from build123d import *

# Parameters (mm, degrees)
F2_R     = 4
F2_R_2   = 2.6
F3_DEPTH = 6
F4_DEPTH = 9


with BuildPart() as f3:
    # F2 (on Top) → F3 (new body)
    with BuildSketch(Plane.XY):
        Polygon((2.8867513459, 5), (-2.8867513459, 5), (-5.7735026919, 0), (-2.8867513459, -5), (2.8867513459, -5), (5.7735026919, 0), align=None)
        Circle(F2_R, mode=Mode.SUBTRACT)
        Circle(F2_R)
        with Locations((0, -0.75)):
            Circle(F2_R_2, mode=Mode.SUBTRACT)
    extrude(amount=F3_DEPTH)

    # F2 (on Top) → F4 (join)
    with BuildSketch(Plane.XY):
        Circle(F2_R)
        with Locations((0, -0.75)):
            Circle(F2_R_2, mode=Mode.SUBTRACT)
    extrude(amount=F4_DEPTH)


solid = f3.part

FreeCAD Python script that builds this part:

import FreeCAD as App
import Part
import Sketcher
from FreeCAD import Vector
Q = App.Units.Quantity


def add_polygon(sketch, points):
    """Adds a closed chain of lines whose ends are joined by coincident constraints."""
    first, n = sketch.GeometryCount, len(points)
    for a, b in zip(points, points[1:] + points[:1]):
        sketch.addGeometry(Part.LineSegment(App.Vector(*a, 0), App.Vector(*b, 0)), False)
    for i in range(n):
        sketch.addConstraint(Sketcher.Constraint("Coincident", first + i, 2, first + (i + 1) % n, 1))

doc = App.newDocument("Part")
params = doc.addObject("Spreadsheet::Sheet", "Params")
for row, (alias, value) in enumerate([
    ("sketch1_diameter", "5.2 mm"),
    ("pad1_length", "6 mm"),
    ("sketch2_diameter", "8 mm"),
    ("sketch2_diameter2", "5.2 mm"),
    ("pad2_length", "9 mm"),
], start=1):
    params.set(f"A{row}", alias)
    params.set(f"B{row}", "=" + value)
    params.setAlias(f"B{row}", alias)

body = doc.addObject("PartDesign::Body", "Body")

sketch1 = body.newObject("Sketcher::SketchObject", "Sketch")
sketch1.AttachmentSupport = (doc.getObject("XY_Plane"), [""])
sketch1.MapMode = "FlatFace"
add_polygon(sketch1, [(2.886751, 5), (-2.886751, 5), (-5.773503, 0), (-2.886751, -5), (2.886751, -5), (5.773503, 0)])
sketch1.addGeometry(Part.Circle(Vector(0, -0.75, 0), Vector(0, 0, 1), 2.6), False)
sketch1.addConstraint([
    Sketcher.Constraint("Horizontal", 0),
    Sketcher.Constraint("Horizontal", 3),
    Sketcher.Constraint("Symmetric", 0, 2, 3, 2, -1, 1),
    Sketcher.Constraint("Symmetric", 1, 2, 4, 2, -1, 1),
    Sketcher.Constraint("PointOnObject", 6, 3, -2),
    Sketcher.Constraint("PointOnObject", 1, 2, -1),
    Sketcher.Constraint("Parallel", 2, 5),
    Sketcher.Constraint("Vertical", 0, 2, 2, 2),
    Sketcher.Constraint("Diameter", 6, 5.2),
    Sketcher.Constraint("Angle", 1, Q("-120 deg")),
    Sketcher.Constraint("DistanceY", -1, 1, 0, 2, 5.0),
    Sketcher.Constraint("DistanceY", 6, 3, -1, 1, 0.75),
    Sketcher.Constraint("DistanceX", 0, 2, 0, 1, 5.773503),
])
sketch1.setExpression("Constraints[14]", "Params.sketch1_diameter")
pad1 = body.newObject("PartDesign::Pad", "Pad")
pad1.Profile = sketch1
pad1.setExpression("Length", "Params.pad1_length")

sketch2 = body.newObject("Sketcher::SketchObject", "Sketch001")
sketch2.AttachmentSupport = (doc.getObject("XY_Plane"), [""])
sketch2.MapMode = "FlatFace"
sketch2.addGeometry([
    Part.Circle(Vector(0, 0, 0), Vector(0, 0, 1), 4),
    Part.Circle(Vector(0, -0.75, 0), Vector(0, 0, 1), 2.6),
], False)
sketch2.addConstraint([
    Sketcher.Constraint("Coincident", 0, 3, -1, 1),
    Sketcher.Constraint("PointOnObject", 1, 3, -2),
    Sketcher.Constraint("Diameter", 0, 8.0),
    Sketcher.Constraint("Diameter", 1, 5.2),
    Sketcher.Constraint("DistanceY", 1, 3, -1, 1, 0.75),
])
sketch2.setExpression("Constraints[2]", "Params.sketch2_diameter")
sketch2.setExpression("Constraints[3]", "Params.sketch2_diameter2")
pad2 = body.newObject("PartDesign::Pad", "Pad001")
pad2.Profile = sketch2
pad2.setExpression("Length", "Params.pad2_length")

doc.recompute()
